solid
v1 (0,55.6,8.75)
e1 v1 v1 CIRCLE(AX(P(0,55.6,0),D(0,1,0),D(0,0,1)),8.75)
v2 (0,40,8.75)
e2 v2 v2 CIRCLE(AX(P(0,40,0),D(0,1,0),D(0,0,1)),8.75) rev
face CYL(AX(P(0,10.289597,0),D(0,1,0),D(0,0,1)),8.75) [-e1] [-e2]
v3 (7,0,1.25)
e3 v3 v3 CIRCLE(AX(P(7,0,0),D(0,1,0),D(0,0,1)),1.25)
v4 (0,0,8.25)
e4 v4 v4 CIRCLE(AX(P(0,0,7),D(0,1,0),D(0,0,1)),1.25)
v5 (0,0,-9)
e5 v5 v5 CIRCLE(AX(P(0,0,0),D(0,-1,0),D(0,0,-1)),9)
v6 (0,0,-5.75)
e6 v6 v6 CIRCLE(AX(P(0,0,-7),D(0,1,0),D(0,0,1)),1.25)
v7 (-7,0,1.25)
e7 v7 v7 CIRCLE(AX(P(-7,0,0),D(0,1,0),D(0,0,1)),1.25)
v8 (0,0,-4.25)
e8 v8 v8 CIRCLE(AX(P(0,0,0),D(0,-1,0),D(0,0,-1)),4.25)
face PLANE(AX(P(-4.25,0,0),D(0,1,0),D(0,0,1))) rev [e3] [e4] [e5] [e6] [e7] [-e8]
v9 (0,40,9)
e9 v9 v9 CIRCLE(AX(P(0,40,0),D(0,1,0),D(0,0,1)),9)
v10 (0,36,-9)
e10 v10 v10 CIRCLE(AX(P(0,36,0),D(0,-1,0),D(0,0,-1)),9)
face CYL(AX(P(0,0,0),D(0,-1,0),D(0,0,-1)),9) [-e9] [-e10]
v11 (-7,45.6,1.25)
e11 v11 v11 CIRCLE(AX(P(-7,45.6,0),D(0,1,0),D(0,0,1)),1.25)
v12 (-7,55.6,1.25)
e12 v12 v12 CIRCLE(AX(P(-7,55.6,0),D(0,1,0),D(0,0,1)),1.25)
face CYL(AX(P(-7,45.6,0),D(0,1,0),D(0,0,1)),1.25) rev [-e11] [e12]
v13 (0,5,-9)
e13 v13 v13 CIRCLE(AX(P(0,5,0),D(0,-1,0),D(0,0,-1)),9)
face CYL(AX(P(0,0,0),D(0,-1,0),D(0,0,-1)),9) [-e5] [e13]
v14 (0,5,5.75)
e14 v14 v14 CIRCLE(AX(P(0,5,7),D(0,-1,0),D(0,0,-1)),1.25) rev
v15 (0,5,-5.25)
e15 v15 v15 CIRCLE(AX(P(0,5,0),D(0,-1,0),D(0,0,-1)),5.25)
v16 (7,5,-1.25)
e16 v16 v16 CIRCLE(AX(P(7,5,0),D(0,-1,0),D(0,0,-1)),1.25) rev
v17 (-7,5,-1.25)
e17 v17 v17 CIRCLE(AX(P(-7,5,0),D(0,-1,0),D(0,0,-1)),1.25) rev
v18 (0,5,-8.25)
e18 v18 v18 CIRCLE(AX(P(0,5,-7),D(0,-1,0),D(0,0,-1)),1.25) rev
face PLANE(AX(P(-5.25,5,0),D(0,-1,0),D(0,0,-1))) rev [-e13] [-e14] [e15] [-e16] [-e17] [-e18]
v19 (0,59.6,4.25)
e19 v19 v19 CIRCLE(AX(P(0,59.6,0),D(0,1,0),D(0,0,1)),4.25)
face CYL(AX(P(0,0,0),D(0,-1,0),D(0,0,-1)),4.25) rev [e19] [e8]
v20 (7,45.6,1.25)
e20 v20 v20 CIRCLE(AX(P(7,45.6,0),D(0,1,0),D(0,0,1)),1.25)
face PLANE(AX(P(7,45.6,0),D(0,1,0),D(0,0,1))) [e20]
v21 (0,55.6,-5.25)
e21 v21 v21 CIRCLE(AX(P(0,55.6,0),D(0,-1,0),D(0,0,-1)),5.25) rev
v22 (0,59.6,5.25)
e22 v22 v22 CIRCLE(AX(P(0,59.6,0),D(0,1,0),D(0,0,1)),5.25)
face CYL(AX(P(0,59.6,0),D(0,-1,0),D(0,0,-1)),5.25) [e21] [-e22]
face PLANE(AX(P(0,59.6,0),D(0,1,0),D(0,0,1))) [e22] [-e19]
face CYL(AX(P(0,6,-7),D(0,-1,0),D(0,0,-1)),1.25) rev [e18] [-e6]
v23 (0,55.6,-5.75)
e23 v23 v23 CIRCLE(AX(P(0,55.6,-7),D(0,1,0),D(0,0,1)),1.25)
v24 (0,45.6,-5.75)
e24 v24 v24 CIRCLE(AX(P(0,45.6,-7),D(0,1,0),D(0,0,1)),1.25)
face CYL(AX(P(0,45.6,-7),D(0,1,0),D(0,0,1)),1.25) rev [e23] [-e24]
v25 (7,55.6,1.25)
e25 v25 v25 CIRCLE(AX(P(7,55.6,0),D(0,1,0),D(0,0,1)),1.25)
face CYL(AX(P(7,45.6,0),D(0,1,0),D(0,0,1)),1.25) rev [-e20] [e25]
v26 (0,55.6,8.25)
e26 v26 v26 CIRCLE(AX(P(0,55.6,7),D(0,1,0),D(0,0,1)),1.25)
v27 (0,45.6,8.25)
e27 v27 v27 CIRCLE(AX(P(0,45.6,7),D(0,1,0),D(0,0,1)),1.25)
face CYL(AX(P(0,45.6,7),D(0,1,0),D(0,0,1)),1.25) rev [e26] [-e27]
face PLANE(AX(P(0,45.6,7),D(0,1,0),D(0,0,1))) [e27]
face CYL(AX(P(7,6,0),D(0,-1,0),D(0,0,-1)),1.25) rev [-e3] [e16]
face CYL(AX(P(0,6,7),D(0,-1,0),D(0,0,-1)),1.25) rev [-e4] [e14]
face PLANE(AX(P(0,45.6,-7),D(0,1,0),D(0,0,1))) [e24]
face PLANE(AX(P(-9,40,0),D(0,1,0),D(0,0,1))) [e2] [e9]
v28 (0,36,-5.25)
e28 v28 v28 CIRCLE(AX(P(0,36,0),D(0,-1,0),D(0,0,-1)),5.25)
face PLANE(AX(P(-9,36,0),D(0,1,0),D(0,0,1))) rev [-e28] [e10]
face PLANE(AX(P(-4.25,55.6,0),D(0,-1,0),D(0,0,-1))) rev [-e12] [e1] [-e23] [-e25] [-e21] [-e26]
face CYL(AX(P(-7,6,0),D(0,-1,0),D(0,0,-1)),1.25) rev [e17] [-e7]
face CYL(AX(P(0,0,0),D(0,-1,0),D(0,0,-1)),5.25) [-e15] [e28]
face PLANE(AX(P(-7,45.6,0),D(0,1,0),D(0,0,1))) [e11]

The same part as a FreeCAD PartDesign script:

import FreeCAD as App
import Part
import Sketcher


def add_polygon(sketch, points):
    """Adds a closed chain of lines whose ends are joined by coincident constraints."""
    first, n = sketch.GeometryCount, len(points)
    for a, b in zip(points, points[1:] + points[:1]):
        sketch.addGeometry(Part.LineSegment(App.Vector(*a, 0), App.Vector(*b, 0)), False)
    for i in range(n):
        sketch.addConstraint(Sketcher.Constraint("Coincident", first + i, 2, first + (i + 1) % n, 1))

doc = App.newDocument("Part")
body = doc.addObject("PartDesign::Body", "Body")

# Sketch on XY plane
sketch1 = body.newObject("Sketcher::SketchObject", "Sketch")
sketch1.AttachmentSupport = (doc.getObject("XY_Plane"), [""])
sketch1.MapMode = "FlatFace"
add_polygon(sketch1, [(-9, 36), (-5.2, 36), (-5.2, 5), (-9, 5), (-9, 0), (-4.2, 0), (-4.2, 55.6), (-9, 55.6)])  # lines 0-7
sketch1.addConstraint([
    Sketcher.Constraint("Horizontal", 0),
    Sketcher.Constraint("Vertical", 1),
    Sketcher.Constraint("Horizontal", 2),
    Sketcher.Constraint("Vertical", 3),
    Sketcher.Constraint("Horizontal", 4),
    Sketcher.Constraint("Vertical", 5),
    Sketcher.Constraint("Horizontal", 6),
    Sketcher.Constraint("Vertical", 7),
    Sketcher.Constraint("PointOnObject", 3, 2, -1),
    Sketcher.Constraint("Vertical", 3, 2, 6, 2),
    Sketcher.Constraint("DistanceY", 1, 2, 1, 1, 31.0),
    Sketcher.Constraint("DistanceY", 3, 2, 3, 1, 5.0),
    Sketcher.Constraint("DistanceY", 5, 1, 5, 2, 55.6),
    Sketcher.Constraint("DistanceX", 2, 2, -1, 1, 9.0),
    Sketcher.Constraint("DistanceX", 1, 2, 4, 2, 1.0),
    Sketcher.Constraint("DistanceX", 0, 1, 0, 2, 3.75),
])
revolution = body.newObject("PartDesign::Revolution", "Revolution")
revolution.Profile = sketch1
revolution.ReferenceAxis = (sketch1, ["V_Axis"])
revolution.Angle = 360

# Sketch on XZ plane
sketch2 = body.newObject("Sketcher::SketchObject", "Sketch001")
sketch2.AttachmentSupport = (doc.getObject("XZ_Plane"), [""])
sketch2.MapMode = "FlatFace"
sketch2.AttachmentOffset = App.Placement(App.Vector(0, 0, -55.6), App.Rotation())
sketch2.addGeometry([
    Part.Circle(App.Vector(0, -7, 0), App.Vector(0, 0, 1), 1.2),
    Part.Circle(App.Vector(0, 7, 0), App.Vector(0, 0, 1), 1.2),
    Part.Circle(App.Vector(-7, 0, 0), App.Vector(0, 0, 1), 1.2),
    Part.Circle(App.Vector(7, 0, 0), App.Vector(0, 0, 1), 1.2),
], False)
sketch2.addConstraint([
    Sketcher.Constraint("Equal", 0, 1),
    Sketcher.Constraint("Equal", 1, 2),
    Sketcher.Constraint("Equal", 2, 3),
    Sketcher.Constraint("Symmetric", 0, 3, 1, 3, -1, 1),
    Sketcher.Constraint("Symmetric", 2, 3, 3, 3, -1, 1),
    Sketcher.Constraint("PointOnObject", 0, 3, -2),
    Sketcher.Constraint("PointOnObject", 2, 3, -1),
    Sketcher.Constraint("Diameter", 0, 2.5),
    Sketcher.Constraint("DistanceY", 0, 3, -1, 1, 7.0),
    Sketcher.Constraint("DistanceX", 2, 3, -1, 1, 7.0),
])
pocket1 = body.newObject("PartDesign::Pocket", "Pocket")
pocket1.Profile = sketch2
pocket1.Length = 10
pocket1.Reversed = True

# Sketch on XZ plane
sketch3 = body.newObject("Sketcher::SketchObject", "Sketch002")
sketch3.AttachmentSupport = (doc.getObject("XZ_Plane"), [""])
sketch3.MapMode = "FlatFace"
sketch3.AttachmentOffset = App.Placement(App.Vector(0, 0, -6), App.Rotation())
sketch3.addGeometry([
    Part.Circle(App.Vector(0, -7, 0), App.Vector(0, 0, 1), 1.2),
    Part.Circle(App.Vector(0, 7, 0), App.Vector(0, 0, 1), 1.2),
    Part.Circle(App.Vector(-7, 0, 0), App.Vector(0, 0, 1), 1.2),
    Part.Circle(App.Vector(7, 0, 0), App.Vector(0, 0, 1), 1.2),
], False)
sketch3.addConstraint([
    Sketcher.Constraint("Equal", 0, 1),
    Sketcher.Constraint("Equal", 1, 2),
    Sketcher.Constraint("Equal", 2, 3),
    Sketcher.Constraint("Symmetric", 0, 3, 1, 3, -1, 1),
    Sketcher.Constraint("Symmetric", 2, 3, 3, 3, -1, 1),
    Sketcher.Constraint("PointOnObject", 0, 3, -2),
    Sketcher.Constraint("PointOnObject", 2, 3, -1),
    Sketcher.Constraint("Diameter", 0, 2.5),
    Sketcher.Constraint("DistanceY", 0, 3, -1, 1, 7.0),
    Sketcher.Constraint("DistanceX", 2, 3, -1, 1, 7.0),
])
pocket2 = body.newObject("PartDesign::Pocket", "Pocket001")
pocket2.Profile = sketch3
pocket2.Length = 6
pocket2.Reversed = True

# Sketch on XZ plane
sketch4 = body.newObject("Sketcher::SketchObject", "Sketch003")
sketch4.AttachmentSupport = (doc.getObject("XZ_Plane"), [""])
sketch4.MapMode = "FlatFace"
sketch4.AttachmentOffset = App.Placement(App.Vector(0, 0, -55.6), App.Rotation())
add_polygon(sketch4, [(-16, -16), (-16, 16), (16, 16), (16, -16)])  # lines 0-3
sketch4.addGeometry(Part.Circle(App.Vector(0, 0, 0), App.Vector(0, 0, 1), 9), False)  # 4
sketch4.addConstraint([
    Sketcher.Constraint("Vertical", 0),
    Sketcher.Constraint("Horizontal", 1),
    Sketcher.Constraint("Vertical", 2),
    Sketcher.Constraint("Horizontal", 3),
    Sketcher.Constraint("Coincident", 4, 3, -1, 1),
    Sketcher.Constraint("Symmetric", 0, 2, 2, 2, -1, 1),
    Sketcher.Constraint("Equal", 3, 0),
    Sketcher.Constraint("Diameter", 4, 17.5),
    Sketcher.Constraint("DistanceX", 1, 1, 1, 2, 32.23),
])
pocket3 = body.newObject("PartDesign::Pocket", "Pocket002")
pocket3.Profile = sketch4
pocket3.Length = 15.6
pocket3.Reversed = True

# Sketch on XZ plane
sketch5 = body.newObject("Sketcher::SketchObject", "Sketch004")
sketch5.AttachmentSupport = (doc.getObject("XZ_Plane"), [""])
sketch5.MapMode = "FlatFace"
sketch5.AttachmentOffset = App.Placement(App.Vector(0, 0, -55.6), App.Rotation())
sketch5.addGeometry([
    Part.Circle(App.Vector(0, 0, 0), App.Vector(0, 0, 1), 5.2),
    Part.Circle(App.Vector(0, 0, 0), App.Vector(0, 0, 1), 4.2),
], False)
sketch5.addConstraint([
    Sketcher.Constraint("Coincident", 0, 3, -1, 1),
    Sketcher.Constraint("Coincident", 1, 3, -1, 1),
    Sketcher.Constraint("Diameter", 0, 10.5),
    Sketcher.Constraint("Diameter", 1, 8.5),
])
pad1 = body.newObject("PartDesign::Pad", "Pad")
pad1.Profile = sketch5
pad1.Length = 4
pad1.Reversed = True

doc.recompute()
